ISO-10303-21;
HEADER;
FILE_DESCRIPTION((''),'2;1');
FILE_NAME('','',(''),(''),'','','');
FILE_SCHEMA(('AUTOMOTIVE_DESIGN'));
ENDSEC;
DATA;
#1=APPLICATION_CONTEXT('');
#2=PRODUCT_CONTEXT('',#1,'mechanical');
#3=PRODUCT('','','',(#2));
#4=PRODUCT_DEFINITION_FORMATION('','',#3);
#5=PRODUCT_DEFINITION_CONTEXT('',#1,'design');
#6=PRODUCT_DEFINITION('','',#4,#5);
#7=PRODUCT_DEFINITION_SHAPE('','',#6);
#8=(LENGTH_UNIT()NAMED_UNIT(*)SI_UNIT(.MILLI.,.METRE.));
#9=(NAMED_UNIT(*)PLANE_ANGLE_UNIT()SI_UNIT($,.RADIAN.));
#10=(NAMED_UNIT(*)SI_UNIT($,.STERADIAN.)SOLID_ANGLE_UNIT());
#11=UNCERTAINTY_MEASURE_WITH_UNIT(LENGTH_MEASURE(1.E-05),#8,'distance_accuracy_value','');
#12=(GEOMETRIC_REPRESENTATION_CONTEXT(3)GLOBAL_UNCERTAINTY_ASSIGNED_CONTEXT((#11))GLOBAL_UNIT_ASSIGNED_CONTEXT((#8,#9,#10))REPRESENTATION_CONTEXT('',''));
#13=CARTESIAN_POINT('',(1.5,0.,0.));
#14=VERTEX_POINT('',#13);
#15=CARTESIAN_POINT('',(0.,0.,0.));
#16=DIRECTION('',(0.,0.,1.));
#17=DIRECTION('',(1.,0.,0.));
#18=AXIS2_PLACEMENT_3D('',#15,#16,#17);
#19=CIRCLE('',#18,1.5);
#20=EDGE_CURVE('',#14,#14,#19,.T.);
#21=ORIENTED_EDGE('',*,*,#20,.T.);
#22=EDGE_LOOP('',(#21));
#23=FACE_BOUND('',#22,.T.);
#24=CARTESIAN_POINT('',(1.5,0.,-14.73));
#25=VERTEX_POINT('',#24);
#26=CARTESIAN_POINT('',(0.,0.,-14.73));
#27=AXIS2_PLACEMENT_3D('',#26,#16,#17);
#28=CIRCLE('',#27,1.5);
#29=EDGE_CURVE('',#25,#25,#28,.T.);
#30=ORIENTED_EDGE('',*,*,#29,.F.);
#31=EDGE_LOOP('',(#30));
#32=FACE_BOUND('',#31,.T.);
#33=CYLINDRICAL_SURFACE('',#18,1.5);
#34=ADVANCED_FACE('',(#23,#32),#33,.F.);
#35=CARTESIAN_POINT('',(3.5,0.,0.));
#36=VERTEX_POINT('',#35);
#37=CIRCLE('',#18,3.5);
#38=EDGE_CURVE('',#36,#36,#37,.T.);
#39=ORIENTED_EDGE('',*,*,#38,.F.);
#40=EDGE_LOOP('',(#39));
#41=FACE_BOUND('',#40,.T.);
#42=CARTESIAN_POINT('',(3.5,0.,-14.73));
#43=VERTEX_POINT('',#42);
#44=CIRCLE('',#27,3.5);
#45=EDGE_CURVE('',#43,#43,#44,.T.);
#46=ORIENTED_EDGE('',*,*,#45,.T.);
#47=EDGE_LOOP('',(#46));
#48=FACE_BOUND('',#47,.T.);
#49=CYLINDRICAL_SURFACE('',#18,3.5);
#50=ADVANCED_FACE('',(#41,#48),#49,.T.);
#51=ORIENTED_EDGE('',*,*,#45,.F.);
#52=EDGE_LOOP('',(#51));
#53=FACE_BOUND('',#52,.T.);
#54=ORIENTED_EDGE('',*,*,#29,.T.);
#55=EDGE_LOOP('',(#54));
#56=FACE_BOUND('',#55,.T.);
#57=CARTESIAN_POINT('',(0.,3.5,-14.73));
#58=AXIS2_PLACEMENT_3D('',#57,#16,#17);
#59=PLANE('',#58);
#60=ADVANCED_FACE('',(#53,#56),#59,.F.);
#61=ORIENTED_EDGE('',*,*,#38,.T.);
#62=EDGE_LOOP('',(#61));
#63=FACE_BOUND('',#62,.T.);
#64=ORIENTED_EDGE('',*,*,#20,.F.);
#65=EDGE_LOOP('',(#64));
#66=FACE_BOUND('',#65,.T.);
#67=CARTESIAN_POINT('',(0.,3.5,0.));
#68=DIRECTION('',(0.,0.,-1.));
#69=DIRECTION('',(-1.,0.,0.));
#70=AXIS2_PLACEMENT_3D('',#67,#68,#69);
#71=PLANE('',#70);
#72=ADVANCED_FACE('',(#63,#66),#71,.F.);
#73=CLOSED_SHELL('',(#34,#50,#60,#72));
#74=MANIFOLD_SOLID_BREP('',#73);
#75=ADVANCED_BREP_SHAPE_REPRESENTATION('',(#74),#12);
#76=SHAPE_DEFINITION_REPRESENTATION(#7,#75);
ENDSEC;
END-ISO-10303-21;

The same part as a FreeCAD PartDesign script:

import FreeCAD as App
import Part
import Sketcher
from FreeCAD import Vector
Q = App.Units.Quantity

doc = App.newDocument("Part")
body = doc.addObject("PartDesign::Body", "Body")

sketch1 = doc.addObject("Sketcher::SketchObject", "Sketch")
body.addObject(sketch1)
sketch1.AttachmentSupport = (doc.YZ_Plane, [""])
sketch1.MapMode = "FlatFace"
sketch1.addGeometry([
    Part.LineSegment(Vector(3.5, 0, 0), Vector(1.5, 0, 0)),
    Part.LineSegment(Vector(1.5, 0, 0), Vector(1.5, -14.7, 0)),
    Part.LineSegment(Vector(1.5, -14.7, 0), Vector(3.5, -14.7, 0)),
    Part.LineSegment(Vector(3.5, -14.7, 0), Vector(3.5, 0, 0)),
], False)
sketch1.addConstraint([
    Sketcher.Constraint("Coincident", 0, 2, 1, 1),
    Sketcher.Constraint("Coincident", 1, 2, 2, 1),
    Sketcher.Constraint("Coincident", 2, 2, 3, 1),
    Sketcher.Constraint("Coincident", 3, 2, 0, 1),
    Sketcher.Constraint("Horizontal", 0),
    Sketcher.Constraint("Vertical", 1),
    Sketcher.Constraint("Horizontal", 2),
    Sketcher.Constraint("Vertical", 3),
    Sketcher.Constraint("PointOnObject", 0, 2, -1),
    Sketcher.Constraint("DistanceX", 0, 2, 0, 1, Q("2 mm")),
    Sketcher.Constraint("DistanceY", 1, 2, 1, 1, Q("14.73 mm")),
    Sketcher.Constraint("DistanceX", -1, 1, 0, 2, Q("1.5 mm")),
])
revolution = doc.addObject("PartDesign::Revolution", "Revolution")
body.addObject(revolution)
revolution.Profile = sketch1
revolution.ReferenceAxis = (sketch1, ["V_Axis"])
revolution.Angle = 360

doc.recompute()
